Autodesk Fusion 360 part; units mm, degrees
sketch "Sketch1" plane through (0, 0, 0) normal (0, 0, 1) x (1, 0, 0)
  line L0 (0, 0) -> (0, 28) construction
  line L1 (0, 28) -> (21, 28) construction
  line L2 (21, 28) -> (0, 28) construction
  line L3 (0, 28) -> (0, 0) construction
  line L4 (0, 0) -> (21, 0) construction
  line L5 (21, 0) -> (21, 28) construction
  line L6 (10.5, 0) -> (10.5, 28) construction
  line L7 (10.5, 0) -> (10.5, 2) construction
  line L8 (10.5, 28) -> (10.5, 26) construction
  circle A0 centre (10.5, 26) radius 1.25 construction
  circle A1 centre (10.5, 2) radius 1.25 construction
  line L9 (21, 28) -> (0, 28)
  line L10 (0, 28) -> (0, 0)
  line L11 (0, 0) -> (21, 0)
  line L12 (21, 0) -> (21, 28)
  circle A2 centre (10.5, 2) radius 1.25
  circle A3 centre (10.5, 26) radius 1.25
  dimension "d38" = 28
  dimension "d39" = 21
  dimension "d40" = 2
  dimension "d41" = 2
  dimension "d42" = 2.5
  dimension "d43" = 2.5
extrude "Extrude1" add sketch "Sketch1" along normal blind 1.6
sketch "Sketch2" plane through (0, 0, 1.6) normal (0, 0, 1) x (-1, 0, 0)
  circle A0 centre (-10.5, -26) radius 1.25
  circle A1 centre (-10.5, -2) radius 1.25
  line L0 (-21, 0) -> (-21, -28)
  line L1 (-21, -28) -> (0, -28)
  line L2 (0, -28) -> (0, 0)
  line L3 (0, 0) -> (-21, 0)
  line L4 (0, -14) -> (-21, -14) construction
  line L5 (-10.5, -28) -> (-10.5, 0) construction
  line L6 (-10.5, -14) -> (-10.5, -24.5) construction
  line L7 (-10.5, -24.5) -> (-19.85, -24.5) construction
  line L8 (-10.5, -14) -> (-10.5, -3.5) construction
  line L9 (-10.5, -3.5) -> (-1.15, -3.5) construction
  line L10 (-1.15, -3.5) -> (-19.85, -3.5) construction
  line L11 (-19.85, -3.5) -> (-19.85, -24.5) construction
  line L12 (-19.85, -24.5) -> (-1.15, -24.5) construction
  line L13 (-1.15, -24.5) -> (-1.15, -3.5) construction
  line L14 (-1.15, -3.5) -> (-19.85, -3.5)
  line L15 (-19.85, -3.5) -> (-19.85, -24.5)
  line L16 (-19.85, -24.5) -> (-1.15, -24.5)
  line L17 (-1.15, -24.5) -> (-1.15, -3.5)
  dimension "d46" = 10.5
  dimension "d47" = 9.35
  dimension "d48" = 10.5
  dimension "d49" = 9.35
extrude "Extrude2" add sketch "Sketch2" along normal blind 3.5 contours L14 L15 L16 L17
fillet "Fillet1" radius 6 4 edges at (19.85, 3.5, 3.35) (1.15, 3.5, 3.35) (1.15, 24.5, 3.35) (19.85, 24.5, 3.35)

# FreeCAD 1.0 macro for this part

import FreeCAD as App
import Part
import Sketcher

V = App.Vector


def edges_at(feature, points):
    """Names of the edges that pass closest to the given points."""
    edges = feature.Shape.Edges
    near = lambda p: min(range(len(edges)), key=lambda i: edges[i].distToShape(Part.Vertex(*p))[0])
    return sorted({f"Edge{near(p) + 1}" for p in points})

doc = App.newDocument("Part")
body = doc.addObject("PartDesign::Body", "Body")

sketch1 = body.newObject("Sketcher::SketchObject", "Sketch")
sketch1.AttachmentSupport = (doc.getObject("XY_Plane"), [""])
sketch1.MapMode = "FlatFace"
sketch1.addGeometry([
    Part.LineSegment(V(21, 0, 0), V(21, 28, 0)),
    Part.LineSegment(V(21, 28, 0), V(0, 28, 0)),
    Part.LineSegment(V(0, 28, 0), V(0, 0, 0)),
    Part.LineSegment(V(0, 0, 0), V(21, 0, 0)),
    Part.Circle(V(10.5, 2, 0), V(0, 0, 1), 1.25),
    Part.Circle(V(10.5, 26, 0), V(0, 0, 1), 1.25),
], False)
sketch1.addConstraint([
    Sketcher.Constraint("Coincident", 0, 2, 1, 1),
    Sketcher.Constraint("Coincident", 1, 2, 2, 1),
    Sketcher.Constraint("Coincident", 2, 2, 3, 1),
    Sketcher.Constraint("Coincident", 3, 2, 0, 1),
    Sketcher.Constraint("Vertical", 0),
    Sketcher.Constraint("Horizontal", 1),
    Sketcher.Constraint("Vertical", 2),
    Sketcher.Constraint("Horizontal", 3),
    Sketcher.Constraint("Coincident", 2, 2, -1, 1),
    Sketcher.Constraint("Equal", 4, 5),
    Sketcher.Constraint("Vertical", 4, 3, 5, 3),
    Sketcher.Constraint("Diameter", 4, 2.5),
    Sketcher.Constraint("DistanceX", 1, 2, 1, 1, 21.0),
    Sketcher.Constraint("DistanceY", 0, 1, 0, 2, 28.0),
    Sketcher.Constraint("DistanceY", -1, 1, 4, 3, 2.0),
    Sketcher.Constraint("DistanceY", 5, 3, 0, 2, 2.0),
    Sketcher.Constraint("DistanceX", -1, 1, 4, 3, 10.5),
])
pad1 = body.newObject("PartDesign::Pad", "Pad")
pad1.Profile = sketch1
pad1.Length = 1.6

sketch2 = body.newObject("Sketcher::SketchObject", "Sketch001")
sketch2.AttachmentSupport = (doc.getObject("XY_Plane"), [""])
sketch2.MapMode = "FlatFace"
sketch2.AttachmentOffset = App.Placement(V(0, 0, 1.6), App.Rotation())
sketch2.addGeometry([
    Part.LineSegment(V(1.15, 24.5, 0), V(1.15, 3.5, 0)),
    Part.LineSegment(V(1.15, 3.5, 0), V(19.85, 3.5, 0)),
    Part.LineSegment(V(19.85, 3.5, 0), V(19.85, 24.5, 0)),
    Part.LineSegment(V(19.85, 24.5, 0), V(1.15, 24.5, 0)),
], False)
sketch2.addConstraint([
    Sketcher.Constraint("Coincident", 0, 2, 1, 1),
    Sketcher.Constraint("Coincident", 1, 2, 2, 1),
    Sketcher.Constraint("Coincident", 2, 2, 3, 1),
    Sketcher.Constraint("Coincident", 3, 2, 0, 1),
    Sketcher.Constraint("Vertical", 0),
    Sketcher.Constraint("Horizontal", 1),
    Sketcher.Constraint("Vertical", 2),
    Sketcher.Constraint("Horizontal", 3),
    Sketcher.Constraint("DistanceY", 0, 2, 0, 1, 21.0),
    Sketcher.Constraint("DistanceX", 1, 1, 1, 2, 18.7),
    Sketcher.Constraint("DistanceY", -1, 1, 0, 2, 3.5),
    Sketcher.Constraint("DistanceX", -1, 1, 0, 2, 1.15),
])
pad2 = body.newObject("PartDesign::Pad", "Pad001")
pad2.Profile = sketch2
pad2.Length = 3.5
doc.recompute()

fillet = body.newObject("PartDesign::Fillet", "Fillet")
fillet.Base = (pad2, edges_at(pad2, [
    (19.85, 3.5, 3.35),
    (1.15, 3.5, 3.35),
    (1.15, 24.5, 3.35),
    (19.85, 24.5, 3.35),
]))
fillet.Radius = 6

doc.recompute()
